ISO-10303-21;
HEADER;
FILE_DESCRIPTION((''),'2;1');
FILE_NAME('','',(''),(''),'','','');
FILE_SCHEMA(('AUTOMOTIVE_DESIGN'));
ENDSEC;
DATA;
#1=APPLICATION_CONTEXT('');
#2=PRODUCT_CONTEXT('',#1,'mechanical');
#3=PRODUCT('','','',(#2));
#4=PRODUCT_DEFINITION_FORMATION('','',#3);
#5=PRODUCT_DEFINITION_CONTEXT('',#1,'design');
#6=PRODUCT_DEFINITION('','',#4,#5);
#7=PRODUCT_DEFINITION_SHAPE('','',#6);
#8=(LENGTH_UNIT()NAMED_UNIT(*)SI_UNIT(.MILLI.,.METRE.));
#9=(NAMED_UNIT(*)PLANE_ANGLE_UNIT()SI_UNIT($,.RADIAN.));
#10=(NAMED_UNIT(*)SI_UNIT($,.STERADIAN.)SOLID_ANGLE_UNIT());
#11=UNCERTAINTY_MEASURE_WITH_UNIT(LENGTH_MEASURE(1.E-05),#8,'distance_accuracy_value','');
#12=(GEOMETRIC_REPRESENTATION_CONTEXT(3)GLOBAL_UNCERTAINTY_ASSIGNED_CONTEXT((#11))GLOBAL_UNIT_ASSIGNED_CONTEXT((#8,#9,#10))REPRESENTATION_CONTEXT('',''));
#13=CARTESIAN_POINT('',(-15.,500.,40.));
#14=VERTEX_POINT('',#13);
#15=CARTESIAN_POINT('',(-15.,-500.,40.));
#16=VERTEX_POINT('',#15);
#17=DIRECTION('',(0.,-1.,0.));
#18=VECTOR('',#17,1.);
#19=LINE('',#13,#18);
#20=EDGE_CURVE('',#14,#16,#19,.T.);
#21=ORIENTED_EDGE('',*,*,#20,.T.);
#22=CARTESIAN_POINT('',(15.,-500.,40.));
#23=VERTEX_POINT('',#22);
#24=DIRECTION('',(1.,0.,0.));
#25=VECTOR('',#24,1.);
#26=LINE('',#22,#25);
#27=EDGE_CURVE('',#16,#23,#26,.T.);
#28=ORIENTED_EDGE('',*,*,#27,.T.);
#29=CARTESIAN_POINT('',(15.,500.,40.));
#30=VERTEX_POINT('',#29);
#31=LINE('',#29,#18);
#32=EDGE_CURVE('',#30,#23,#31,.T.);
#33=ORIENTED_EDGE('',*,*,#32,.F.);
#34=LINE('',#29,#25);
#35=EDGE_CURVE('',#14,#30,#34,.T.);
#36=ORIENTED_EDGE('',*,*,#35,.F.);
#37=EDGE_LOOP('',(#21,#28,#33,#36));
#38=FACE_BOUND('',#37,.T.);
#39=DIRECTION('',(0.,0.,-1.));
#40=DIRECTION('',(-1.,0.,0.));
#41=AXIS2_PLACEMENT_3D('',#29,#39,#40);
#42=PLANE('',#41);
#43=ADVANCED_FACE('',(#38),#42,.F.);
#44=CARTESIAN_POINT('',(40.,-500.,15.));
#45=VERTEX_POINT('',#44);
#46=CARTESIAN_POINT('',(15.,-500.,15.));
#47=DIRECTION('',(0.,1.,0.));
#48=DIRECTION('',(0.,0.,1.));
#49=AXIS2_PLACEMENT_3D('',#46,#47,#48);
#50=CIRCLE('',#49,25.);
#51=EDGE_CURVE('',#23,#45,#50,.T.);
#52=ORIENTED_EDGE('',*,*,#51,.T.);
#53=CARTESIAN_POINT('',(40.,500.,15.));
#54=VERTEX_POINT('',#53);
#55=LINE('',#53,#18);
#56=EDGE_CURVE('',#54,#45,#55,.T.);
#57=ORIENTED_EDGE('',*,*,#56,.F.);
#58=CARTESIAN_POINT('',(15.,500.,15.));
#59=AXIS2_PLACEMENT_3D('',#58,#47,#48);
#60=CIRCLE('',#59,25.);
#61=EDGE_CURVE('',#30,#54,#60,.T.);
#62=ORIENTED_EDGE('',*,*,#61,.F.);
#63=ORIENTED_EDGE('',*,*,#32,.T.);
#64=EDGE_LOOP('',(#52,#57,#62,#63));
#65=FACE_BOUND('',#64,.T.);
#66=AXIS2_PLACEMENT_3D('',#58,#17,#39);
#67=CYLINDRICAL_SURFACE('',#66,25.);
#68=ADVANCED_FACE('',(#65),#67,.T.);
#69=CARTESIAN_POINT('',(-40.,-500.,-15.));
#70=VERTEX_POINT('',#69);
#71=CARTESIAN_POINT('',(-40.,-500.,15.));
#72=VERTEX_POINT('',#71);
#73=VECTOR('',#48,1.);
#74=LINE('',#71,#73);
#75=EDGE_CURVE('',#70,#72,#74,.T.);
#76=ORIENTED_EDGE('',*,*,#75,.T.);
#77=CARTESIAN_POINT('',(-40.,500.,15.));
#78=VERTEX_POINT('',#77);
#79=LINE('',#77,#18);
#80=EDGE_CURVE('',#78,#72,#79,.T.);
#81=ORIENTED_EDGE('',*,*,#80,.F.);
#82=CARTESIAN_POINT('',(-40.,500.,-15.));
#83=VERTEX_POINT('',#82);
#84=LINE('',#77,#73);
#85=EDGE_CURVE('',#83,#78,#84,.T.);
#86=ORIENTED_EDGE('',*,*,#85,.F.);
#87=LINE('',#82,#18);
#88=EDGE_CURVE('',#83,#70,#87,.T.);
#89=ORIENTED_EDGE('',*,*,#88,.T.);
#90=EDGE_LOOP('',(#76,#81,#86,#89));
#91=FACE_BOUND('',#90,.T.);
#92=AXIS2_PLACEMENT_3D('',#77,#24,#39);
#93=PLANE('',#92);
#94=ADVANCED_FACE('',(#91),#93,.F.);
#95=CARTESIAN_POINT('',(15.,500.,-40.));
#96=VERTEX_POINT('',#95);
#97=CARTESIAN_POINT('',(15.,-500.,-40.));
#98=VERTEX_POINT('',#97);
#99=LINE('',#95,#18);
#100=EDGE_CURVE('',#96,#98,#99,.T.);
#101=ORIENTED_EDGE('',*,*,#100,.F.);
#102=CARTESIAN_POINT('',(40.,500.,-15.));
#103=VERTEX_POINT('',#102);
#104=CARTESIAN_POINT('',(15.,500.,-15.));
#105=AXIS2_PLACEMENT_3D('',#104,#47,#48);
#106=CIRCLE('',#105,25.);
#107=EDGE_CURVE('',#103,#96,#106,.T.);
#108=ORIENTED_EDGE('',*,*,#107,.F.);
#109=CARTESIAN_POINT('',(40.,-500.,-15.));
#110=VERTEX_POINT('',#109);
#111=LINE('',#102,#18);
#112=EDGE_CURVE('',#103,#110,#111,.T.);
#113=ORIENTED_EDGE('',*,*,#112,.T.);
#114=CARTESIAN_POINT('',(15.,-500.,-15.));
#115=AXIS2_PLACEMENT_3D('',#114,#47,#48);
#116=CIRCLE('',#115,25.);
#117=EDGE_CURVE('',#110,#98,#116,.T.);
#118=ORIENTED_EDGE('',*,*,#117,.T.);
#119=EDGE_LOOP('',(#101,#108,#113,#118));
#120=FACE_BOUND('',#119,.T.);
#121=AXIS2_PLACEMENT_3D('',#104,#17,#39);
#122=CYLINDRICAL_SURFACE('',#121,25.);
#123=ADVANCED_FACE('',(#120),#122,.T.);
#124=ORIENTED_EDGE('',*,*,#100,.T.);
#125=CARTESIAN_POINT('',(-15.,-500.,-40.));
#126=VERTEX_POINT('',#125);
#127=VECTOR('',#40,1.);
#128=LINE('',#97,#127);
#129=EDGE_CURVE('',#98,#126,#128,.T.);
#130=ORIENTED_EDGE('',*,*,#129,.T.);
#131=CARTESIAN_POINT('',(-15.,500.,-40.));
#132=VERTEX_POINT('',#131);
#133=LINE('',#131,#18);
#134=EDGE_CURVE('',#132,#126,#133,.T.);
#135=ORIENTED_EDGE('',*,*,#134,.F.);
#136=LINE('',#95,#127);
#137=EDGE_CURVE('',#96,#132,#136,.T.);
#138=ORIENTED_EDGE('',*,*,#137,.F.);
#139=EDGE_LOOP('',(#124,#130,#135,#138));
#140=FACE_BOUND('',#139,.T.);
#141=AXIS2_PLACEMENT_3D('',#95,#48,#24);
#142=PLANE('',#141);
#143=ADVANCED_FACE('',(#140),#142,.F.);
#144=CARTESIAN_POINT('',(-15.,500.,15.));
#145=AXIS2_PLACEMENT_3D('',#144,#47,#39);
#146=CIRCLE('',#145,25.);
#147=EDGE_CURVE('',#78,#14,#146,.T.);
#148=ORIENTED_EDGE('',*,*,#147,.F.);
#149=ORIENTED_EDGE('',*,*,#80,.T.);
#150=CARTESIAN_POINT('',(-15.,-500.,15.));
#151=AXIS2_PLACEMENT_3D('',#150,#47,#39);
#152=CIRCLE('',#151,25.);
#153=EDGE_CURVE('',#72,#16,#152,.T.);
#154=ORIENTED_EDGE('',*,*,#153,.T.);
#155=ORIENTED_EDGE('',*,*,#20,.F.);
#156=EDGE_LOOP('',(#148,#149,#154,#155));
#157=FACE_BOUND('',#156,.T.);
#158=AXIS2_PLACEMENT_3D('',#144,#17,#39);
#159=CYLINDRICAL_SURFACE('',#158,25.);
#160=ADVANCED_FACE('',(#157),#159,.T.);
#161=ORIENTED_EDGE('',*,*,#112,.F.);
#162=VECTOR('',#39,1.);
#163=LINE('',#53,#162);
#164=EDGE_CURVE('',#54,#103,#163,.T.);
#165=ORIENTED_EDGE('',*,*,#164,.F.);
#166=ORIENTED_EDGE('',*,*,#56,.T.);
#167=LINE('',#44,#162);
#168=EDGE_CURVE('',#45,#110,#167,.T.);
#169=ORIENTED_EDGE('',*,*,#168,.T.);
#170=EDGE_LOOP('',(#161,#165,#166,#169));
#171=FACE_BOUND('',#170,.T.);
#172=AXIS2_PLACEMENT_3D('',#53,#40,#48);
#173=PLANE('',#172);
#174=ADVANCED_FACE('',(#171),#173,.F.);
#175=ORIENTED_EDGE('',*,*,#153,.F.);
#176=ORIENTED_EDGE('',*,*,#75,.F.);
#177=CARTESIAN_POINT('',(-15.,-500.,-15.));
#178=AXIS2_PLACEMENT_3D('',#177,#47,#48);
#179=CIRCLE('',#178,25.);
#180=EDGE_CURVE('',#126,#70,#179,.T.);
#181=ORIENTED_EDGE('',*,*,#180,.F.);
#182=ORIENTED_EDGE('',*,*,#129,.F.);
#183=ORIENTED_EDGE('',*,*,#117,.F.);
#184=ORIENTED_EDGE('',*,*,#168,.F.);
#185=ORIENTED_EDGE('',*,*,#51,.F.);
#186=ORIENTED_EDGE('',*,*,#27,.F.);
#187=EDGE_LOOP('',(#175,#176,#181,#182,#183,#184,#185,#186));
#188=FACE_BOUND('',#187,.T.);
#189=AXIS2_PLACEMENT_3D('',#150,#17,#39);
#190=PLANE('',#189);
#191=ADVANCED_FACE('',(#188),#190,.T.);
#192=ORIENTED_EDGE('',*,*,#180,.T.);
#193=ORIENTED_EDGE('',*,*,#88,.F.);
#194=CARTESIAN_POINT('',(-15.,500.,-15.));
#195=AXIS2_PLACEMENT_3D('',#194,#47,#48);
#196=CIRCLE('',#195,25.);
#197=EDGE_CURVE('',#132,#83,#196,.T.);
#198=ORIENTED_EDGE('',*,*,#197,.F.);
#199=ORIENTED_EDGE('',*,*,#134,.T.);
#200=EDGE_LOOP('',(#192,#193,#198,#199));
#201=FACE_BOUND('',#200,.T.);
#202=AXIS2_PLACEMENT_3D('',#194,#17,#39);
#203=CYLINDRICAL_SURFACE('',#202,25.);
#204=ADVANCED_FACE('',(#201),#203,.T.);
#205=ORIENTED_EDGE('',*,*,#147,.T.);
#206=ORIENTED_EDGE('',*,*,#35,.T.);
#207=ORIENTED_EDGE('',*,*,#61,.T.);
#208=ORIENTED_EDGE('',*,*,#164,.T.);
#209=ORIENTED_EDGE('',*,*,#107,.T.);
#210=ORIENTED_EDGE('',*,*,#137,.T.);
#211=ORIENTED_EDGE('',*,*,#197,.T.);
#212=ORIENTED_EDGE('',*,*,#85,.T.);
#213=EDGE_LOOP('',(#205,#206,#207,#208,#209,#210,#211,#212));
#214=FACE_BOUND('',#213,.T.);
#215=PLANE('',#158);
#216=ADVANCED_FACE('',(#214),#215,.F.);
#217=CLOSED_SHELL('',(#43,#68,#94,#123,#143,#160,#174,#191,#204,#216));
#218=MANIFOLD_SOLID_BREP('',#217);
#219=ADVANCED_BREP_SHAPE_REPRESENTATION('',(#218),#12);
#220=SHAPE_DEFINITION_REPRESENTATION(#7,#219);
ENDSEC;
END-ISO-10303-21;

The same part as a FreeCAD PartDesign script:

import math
import FreeCAD as App
import Part
import Sketcher
from FreeCAD import Vector
Q = App.Units.Quantity

doc = App.newDocument("Part")
body = doc.addObject("PartDesign::Body", "Body")

sketch1 = body.newObject("Sketcher::SketchObject", "Sketch")
sketch1.AttachmentSupport = (doc.getObject("XZ_Plane"), [""])
sketch1.MapMode = "FlatFace"
sketch1.addGeometry([
    Part.LineSegment(Vector(-15, 40, 0), Vector(15, 40, 0)),
    Part.ArcOfCircle(Part.Circle(Vector(15, 15, 0), Vector(0, 0, 1), 25), math.radians(0), math.radians(90)),
    Part.LineSegment(Vector(40, 15, 0), Vector(40, -15, 0)),
    Part.ArcOfCircle(Part.Circle(Vector(15, -15, 0), Vector(0, 0, 1), 25), math.radians(-90), math.radians(0)),
    Part.LineSegment(Vector(15, -40, 0), Vector(-15, -40, 0)),
    Part.ArcOfCircle(Part.Circle(Vector(-15, -15, 0), Vector(0, 0, 1), 25), math.radians(180), math.radians(270)),
    Part.LineSegment(Vector(-40, -15, 0), Vector(-40, 15, 0)),
    Part.ArcOfCircle(Part.Circle(Vector(-15, 15, 0), Vector(0, 0, 1), 25), math.radians(90), math.radians(180)),
], False)
sketch1.addConstraint([
    Sketcher.Constraint("Tangent", 0, 2, 1, 2),
    Sketcher.Constraint("Tangent", 1, 1, 2, 1),
    Sketcher.Constraint("Tangent", 2, 2, 3, 2),
    Sketcher.Constraint("Tangent", 3, 1, 4, 1),
    Sketcher.Constraint("Tangent", 4, 2, 5, 2),
    Sketcher.Constraint("Tangent", 5, 1, 6, 1),
    Sketcher.Constraint("Tangent", 6, 2, 7, 2),
    Sketcher.Constraint("Tangent", 7, 1, 0, 1),
    Sketcher.Constraint("Horizontal", 0),
    Sketcher.Constraint("Vertical", 2),
    Sketcher.Constraint("Horizontal", 4),
    Sketcher.Constraint("Vertical", 6),
    Sketcher.Constraint("Equal", 1, 3),
    Sketcher.Constraint("Equal", 3, 5),
    Sketcher.Constraint("Equal", 5, 7),
    Sketcher.Constraint("Symmetric", 1, 3, 5, 3, -1, 1),
    Sketcher.Constraint("Equal", 4, 2),
    Sketcher.Constraint("Radius", 1, Q("25 mm")),
    Sketcher.Constraint("DistanceX", 0, 1, 0, 2, Q("30 mm")),
])
pad1 = body.newObject("PartDesign::Pad", "Pad")
pad1.Profile = sketch1
pad1.Length = 1000
pad1.Midplane = True

doc.recompute()
